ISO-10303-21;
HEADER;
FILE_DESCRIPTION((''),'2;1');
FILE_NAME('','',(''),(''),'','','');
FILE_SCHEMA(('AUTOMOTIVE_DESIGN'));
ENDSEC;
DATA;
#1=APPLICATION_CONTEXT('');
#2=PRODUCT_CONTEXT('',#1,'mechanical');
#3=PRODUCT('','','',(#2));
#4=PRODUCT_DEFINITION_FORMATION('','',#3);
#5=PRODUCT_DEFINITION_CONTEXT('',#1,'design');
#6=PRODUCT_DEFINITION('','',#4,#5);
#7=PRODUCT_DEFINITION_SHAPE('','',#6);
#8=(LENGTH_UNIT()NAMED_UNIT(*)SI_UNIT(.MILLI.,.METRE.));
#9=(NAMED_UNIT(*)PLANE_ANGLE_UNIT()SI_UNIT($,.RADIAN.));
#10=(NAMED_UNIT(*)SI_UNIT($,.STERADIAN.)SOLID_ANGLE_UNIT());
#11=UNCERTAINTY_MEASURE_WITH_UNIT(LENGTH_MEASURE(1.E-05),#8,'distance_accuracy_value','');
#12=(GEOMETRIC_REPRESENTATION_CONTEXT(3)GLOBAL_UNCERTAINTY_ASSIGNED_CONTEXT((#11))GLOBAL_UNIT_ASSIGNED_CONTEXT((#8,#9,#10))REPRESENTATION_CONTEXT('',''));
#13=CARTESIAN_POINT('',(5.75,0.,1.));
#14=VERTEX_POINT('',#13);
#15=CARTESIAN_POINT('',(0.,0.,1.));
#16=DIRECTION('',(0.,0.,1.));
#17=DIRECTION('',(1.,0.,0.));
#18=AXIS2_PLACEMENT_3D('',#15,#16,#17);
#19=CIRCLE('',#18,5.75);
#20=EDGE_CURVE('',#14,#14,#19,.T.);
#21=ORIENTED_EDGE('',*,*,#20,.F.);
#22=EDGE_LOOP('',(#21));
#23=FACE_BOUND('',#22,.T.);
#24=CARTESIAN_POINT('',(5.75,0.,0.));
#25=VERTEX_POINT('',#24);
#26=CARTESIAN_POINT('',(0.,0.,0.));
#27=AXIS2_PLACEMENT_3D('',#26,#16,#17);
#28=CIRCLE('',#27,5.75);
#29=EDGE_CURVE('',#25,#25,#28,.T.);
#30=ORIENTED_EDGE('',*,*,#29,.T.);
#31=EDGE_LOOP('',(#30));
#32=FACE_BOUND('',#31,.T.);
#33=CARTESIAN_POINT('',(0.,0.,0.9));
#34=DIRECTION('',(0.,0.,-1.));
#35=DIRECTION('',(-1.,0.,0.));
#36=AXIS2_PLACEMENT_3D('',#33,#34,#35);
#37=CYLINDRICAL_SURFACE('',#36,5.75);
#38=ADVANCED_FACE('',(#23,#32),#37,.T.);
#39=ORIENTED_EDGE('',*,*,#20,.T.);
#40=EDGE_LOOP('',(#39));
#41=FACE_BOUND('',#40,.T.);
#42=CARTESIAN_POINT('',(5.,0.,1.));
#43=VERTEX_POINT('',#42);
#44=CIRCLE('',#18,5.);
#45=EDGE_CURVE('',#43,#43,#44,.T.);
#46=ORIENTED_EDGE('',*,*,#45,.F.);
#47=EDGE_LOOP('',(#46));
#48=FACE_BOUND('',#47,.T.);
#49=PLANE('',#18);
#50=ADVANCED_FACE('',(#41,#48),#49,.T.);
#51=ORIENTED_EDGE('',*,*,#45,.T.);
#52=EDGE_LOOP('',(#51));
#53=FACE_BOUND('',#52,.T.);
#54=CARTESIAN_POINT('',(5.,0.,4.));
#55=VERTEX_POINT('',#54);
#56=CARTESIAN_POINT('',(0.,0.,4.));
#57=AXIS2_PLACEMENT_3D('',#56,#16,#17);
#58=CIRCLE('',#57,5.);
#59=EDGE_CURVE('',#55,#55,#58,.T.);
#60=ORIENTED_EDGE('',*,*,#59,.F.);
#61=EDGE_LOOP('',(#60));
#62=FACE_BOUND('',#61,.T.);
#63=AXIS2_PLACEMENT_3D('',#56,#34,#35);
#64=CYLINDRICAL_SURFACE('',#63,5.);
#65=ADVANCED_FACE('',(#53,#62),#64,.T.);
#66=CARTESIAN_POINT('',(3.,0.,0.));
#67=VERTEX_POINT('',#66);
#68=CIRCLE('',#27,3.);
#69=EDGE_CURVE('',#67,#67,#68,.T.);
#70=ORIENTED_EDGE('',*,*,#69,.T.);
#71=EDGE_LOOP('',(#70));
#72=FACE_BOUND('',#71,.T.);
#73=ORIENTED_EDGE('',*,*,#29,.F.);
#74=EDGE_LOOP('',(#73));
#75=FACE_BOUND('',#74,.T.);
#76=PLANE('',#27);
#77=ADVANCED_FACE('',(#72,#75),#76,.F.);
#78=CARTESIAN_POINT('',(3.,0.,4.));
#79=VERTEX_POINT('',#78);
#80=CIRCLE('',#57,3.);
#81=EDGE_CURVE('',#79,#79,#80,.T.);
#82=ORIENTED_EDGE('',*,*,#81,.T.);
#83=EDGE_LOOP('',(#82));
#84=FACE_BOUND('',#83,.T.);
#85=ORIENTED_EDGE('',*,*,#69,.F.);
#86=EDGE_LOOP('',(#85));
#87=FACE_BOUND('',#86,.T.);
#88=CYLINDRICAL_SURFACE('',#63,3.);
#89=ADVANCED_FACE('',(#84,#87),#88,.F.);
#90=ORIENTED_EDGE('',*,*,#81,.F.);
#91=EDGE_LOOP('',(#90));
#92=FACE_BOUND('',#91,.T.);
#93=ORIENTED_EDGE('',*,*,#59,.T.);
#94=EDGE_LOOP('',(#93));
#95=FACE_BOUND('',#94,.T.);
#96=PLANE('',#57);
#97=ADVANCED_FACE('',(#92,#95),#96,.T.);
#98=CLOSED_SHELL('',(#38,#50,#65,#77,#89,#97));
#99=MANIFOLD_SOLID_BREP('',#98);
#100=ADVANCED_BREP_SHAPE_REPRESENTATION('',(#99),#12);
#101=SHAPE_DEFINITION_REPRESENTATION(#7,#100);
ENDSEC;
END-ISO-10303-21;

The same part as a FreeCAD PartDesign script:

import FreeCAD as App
import Part
import Sketcher

V = App.Vector
Q = App.Units.Quantity

doc = App.newDocument("Part")
params = doc.addObject("Spreadsheet::Sheet", "Params")
for row, (alias, value) in enumerate([
    ("sketch1_diameter", "10 mm"),
    ("sketch1_diameter2", "6 mm"),
    ("pad1_length", "4 mm"),
    ("sketch2_diameter", "11.5 mm"),
    ("pad2_length", "0.9 mm"),
    ("sketch3_diameter", "6 mm"),
    ("pocket1_length", "9.9 mm"),
    ("sketch4_diameter", "11.5 mm"),
    ("pad3_length", "1 mm"),
    ("sketch5_diameter", "6 mm"),
    ("pocket2_length", "7 mm"),
], start=1):
    params.set(f"A{row}", alias)
    params.set(f"B{row}", "=" + value)
    params.setAlias(f"B{row}", alias)

body = doc.addObject("PartDesign::Body", "Body")

sketch1 = body.newObject("Sketcher::SketchObject", "Sketch")
sketch1.AttachmentSupport = (doc.getObject("XY_Plane"), [""])
sketch1.MapMode = "FlatFace"
sketch1.addGeometry([
    Part.Circle(V(0, 0, 0), V(0, 0, 1), 5),
    Part.Circle(V(0, 0, 0), V(0, 0, 1), 3),
], False)
sketch1.addConstraint([
    Sketcher.Constraint("Coincident", 0, 3, -1, 1),
    Sketcher.Constraint("Coincident", 1, 3, -1, 1),
    Sketcher.Constraint("Diameter", 0, Q("10 mm")),
    Sketcher.Constraint("Diameter", 1, Q("6 mm")),
])
sketch1.setExpression("Constraints[2]", "Params.sketch1_diameter")
sketch1.setExpression("Constraints[3]", "Params.sketch1_diameter2")
pad1 = body.newObject("PartDesign::Pad", "Pad")
pad1.Profile = sketch1
pad1.setExpression("Length", "Params.pad1_length")

sketch2 = body.newObject("Sketcher::SketchObject", "Sketch001")
sketch2.AttachmentSupport = (doc.getObject("XY_Plane"), [""])
sketch2.MapMode = "FlatFace"
sketch2.addGeometry(Part.Circle(V(0, 0, 0), V(0, 0, 1), 6), False)
sketch2.addConstraint([
    Sketcher.Constraint("Coincident", 0, 3, -1, 1),
    Sketcher.Constraint("Diameter", 0, Q("11.5 mm")),
])
sketch2.setExpression("Constraints[1]", "Params.sketch2_diameter")
pad2 = body.newObject("PartDesign::Pad", "Pad001")
pad2.Profile = sketch2
pad2.setExpression("Length", "Params.pad2_length")

sketch3 = body.newObject("Sketcher::SketchObject", "Sketch002")
sketch3.AttachmentSupport = (doc.getObject("XY_Plane"), [""])
sketch3.MapMode = "FlatFace"
sketch3.addGeometry(Part.Circle(V(0, 0, 0), V(0, 0, 1), 3), False)
sketch3.addConstraint([
    Sketcher.Constraint("Coincident", 0, 3, -1, 1),
    Sketcher.Constraint("Diameter", 0, Q("6 mm")),
])
sketch3.setExpression("Constraints[1]", "Params.sketch3_diameter")
pocket1 = body.newObject("PartDesign::Pocket", "Pocket")
pocket1.Profile = sketch3
pocket1.setExpression("Length", "Params.pocket1_length")
pocket1.Reversed = True

sketch4 = body.newObject("Sketcher::SketchObject", "Sketch003")
sketch4.AttachmentSupport = (doc.getObject("XY_Plane"), [""])
sketch4.MapMode = "FlatFace"
sketch4.addGeometry(Part.Circle(V(0, 0, 0), V(0, 0, 1), 6), False)
sketch4.addConstraint([
    Sketcher.Constraint("Coincident", 0, 3, -1, 1),
    Sketcher.Constraint("Diameter", 0, Q("11.5 mm")),
])
sketch4.setExpression("Constraints[1]", "Params.sketch4_diameter")
pad3 = body.newObject("PartDesign::Pad", "Pad002")
pad3.Profile = sketch4
pad3.setExpression("Length", "Params.pad3_length")

sketch5 = body.newObject("Sketcher::SketchObject", "Sketch004")
sketch5.AttachmentSupport = (doc.getObject("XY_Plane"), [""])
sketch5.MapMode = "FlatFace"
sketch5.addGeometry(Part.Circle(V(0, 0, 0), V(0, 0, 1), 3), False)
sketch5.addConstraint([
    Sketcher.Constraint("Coincident", 0, 3, -1, 1),
    Sketcher.Constraint("Diameter", 0, Q("6 mm")),
])
sketch5.setExpression("Constraints[1]", "Params.sketch5_diameter")
pocket2 = body.newObject("PartDesign::Pocket", "Pocket001")
pocket2.Profile = sketch5
pocket2.setExpression("Length", "Params.pocket2_length")
pocket2.Reversed = True

doc.recompute()
